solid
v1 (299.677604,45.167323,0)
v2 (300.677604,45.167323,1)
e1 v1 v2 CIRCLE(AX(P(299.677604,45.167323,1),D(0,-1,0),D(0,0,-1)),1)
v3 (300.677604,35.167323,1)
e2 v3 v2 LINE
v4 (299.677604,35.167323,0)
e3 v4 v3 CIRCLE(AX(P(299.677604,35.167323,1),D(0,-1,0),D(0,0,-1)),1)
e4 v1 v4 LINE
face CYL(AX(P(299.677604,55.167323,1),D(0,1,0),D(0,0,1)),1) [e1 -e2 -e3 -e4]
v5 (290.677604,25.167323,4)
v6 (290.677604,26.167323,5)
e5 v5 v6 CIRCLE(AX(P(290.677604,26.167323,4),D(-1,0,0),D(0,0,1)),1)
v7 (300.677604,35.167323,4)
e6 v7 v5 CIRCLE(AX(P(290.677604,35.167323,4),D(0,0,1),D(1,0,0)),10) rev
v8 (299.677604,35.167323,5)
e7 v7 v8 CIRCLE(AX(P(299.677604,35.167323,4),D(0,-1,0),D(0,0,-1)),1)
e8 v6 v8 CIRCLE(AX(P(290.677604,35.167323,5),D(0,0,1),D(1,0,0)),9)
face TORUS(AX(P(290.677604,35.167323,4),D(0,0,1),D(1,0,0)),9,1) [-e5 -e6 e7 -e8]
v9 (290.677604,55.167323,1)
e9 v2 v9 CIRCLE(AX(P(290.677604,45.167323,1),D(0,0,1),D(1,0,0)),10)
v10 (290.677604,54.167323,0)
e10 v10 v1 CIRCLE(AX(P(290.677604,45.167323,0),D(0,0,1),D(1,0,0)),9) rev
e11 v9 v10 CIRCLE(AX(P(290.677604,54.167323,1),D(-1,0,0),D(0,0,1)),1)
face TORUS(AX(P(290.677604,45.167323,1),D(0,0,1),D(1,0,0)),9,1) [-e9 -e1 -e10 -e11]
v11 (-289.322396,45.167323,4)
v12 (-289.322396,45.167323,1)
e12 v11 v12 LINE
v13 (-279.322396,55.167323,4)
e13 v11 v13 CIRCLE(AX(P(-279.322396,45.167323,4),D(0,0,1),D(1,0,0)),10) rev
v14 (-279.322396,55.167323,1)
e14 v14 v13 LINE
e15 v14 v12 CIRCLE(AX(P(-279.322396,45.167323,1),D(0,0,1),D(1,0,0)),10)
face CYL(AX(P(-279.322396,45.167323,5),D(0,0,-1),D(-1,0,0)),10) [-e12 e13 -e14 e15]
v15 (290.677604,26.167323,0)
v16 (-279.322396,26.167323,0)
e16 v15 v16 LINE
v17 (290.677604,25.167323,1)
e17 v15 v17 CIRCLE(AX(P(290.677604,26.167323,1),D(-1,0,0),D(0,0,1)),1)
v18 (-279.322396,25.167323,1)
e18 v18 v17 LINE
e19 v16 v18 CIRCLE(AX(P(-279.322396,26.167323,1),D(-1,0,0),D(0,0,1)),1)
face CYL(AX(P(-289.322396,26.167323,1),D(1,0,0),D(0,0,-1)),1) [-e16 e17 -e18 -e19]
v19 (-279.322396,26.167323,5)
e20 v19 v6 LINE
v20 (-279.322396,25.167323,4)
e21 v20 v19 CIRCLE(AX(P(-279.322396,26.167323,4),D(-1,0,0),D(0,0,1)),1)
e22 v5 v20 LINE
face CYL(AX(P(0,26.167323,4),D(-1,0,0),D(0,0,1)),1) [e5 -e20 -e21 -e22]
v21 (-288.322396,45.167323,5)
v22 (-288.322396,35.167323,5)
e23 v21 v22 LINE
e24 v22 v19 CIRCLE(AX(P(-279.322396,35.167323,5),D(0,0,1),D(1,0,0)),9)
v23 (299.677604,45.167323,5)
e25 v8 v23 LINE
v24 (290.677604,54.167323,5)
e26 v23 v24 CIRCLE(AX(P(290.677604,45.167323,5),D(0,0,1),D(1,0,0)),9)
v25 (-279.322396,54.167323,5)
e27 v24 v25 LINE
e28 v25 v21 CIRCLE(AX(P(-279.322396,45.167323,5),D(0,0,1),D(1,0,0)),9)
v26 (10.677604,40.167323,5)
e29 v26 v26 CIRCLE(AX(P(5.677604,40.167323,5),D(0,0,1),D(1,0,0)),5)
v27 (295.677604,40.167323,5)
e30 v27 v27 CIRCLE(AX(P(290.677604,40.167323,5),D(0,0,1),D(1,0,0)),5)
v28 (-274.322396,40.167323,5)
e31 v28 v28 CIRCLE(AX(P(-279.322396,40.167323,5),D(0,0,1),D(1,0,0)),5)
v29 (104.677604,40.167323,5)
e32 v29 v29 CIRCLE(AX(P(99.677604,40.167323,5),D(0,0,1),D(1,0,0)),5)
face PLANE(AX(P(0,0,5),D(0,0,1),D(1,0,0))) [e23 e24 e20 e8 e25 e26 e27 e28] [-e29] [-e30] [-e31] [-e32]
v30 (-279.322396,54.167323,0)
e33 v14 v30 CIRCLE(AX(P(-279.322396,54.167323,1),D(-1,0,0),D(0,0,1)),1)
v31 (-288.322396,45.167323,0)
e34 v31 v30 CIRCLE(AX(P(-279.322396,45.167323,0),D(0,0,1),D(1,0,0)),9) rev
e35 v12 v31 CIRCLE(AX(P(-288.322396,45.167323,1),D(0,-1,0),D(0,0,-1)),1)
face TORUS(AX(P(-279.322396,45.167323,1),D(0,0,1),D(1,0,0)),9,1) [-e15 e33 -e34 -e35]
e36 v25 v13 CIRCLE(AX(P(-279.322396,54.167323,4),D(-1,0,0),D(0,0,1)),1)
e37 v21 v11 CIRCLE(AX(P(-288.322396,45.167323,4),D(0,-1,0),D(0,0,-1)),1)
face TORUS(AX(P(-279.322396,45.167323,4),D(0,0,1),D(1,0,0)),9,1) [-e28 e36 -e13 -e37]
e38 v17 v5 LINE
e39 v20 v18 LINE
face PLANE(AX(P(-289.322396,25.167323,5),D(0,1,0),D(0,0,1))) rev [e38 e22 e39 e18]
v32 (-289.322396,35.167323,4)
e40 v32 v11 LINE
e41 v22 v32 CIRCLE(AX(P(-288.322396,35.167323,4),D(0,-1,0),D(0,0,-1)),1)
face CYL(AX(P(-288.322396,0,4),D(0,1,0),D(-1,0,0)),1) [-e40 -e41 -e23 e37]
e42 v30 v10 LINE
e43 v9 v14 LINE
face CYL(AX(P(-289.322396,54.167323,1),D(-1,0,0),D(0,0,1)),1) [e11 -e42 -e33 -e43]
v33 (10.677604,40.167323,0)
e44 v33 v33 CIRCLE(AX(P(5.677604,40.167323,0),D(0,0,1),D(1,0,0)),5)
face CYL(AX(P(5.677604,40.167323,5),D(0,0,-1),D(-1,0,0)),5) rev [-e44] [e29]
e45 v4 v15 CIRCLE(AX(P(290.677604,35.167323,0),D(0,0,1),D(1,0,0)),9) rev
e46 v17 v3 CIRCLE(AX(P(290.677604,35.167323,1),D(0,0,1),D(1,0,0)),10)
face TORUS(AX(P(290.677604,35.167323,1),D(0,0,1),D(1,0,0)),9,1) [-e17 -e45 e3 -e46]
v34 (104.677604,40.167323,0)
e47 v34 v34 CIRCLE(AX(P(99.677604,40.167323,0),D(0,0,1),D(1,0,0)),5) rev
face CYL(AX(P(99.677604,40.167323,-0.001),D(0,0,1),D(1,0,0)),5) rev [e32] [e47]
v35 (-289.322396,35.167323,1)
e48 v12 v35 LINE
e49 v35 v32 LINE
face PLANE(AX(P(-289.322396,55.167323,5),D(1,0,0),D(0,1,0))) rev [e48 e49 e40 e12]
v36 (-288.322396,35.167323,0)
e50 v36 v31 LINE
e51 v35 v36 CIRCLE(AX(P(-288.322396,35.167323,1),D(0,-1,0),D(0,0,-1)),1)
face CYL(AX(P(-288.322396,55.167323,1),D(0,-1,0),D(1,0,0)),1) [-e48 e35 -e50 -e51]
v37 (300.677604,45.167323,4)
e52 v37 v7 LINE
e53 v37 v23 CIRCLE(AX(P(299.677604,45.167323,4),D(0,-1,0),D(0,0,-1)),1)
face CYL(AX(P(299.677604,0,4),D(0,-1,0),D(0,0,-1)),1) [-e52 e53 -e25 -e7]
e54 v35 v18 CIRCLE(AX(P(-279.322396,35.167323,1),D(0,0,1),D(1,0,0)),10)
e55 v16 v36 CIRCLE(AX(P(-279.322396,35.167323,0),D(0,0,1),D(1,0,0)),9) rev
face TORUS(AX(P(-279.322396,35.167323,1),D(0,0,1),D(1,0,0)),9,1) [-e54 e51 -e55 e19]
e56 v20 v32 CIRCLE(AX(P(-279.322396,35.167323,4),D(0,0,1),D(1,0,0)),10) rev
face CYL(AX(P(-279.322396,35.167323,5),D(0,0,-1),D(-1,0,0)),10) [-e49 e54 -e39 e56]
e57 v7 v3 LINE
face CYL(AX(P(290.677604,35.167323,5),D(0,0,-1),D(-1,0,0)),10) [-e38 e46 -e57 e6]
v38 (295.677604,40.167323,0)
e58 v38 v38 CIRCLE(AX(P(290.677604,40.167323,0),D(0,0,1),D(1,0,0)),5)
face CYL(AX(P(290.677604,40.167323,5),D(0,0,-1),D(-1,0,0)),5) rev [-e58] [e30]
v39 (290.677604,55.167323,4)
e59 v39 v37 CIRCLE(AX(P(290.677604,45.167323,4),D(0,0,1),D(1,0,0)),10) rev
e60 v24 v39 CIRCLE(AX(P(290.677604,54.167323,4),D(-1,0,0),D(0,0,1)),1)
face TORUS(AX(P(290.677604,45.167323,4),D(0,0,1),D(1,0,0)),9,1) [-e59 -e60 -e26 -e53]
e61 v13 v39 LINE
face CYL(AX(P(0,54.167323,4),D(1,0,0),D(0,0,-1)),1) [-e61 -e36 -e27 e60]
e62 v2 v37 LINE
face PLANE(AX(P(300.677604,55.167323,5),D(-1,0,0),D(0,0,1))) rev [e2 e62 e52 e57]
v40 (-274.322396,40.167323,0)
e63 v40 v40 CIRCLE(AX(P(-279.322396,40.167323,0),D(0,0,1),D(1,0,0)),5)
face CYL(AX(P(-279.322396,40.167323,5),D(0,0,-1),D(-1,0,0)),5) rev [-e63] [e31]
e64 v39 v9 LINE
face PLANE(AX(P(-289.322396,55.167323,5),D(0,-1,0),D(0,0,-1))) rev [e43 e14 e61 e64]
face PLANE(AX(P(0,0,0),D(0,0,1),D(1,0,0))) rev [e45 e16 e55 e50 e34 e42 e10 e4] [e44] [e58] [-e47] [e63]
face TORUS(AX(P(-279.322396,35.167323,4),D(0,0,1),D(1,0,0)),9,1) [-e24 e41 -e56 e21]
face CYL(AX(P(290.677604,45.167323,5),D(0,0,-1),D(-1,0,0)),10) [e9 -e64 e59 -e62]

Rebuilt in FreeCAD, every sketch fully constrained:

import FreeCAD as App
import Part
import Sketcher


def edges_at(feature, points):
    """Names of the edges that pass closest to the given points."""
    edges = feature.Shape.Edges
    near = lambda p: min(range(len(edges)), key=lambda i: edges[i].distToShape(Part.Vertex(*p))[0])
    return sorted({f"Edge{near(p) + 1}" for p in points})


def add_polygon(sketch, points):
    """Adds a closed chain of lines whose ends are joined by coincident constraints."""
    first, n = sketch.GeometryCount, len(points)
    for a, b in zip(points, points[1:] + points[:1]):
        sketch.addGeometry(Part.LineSegment(App.Vector(*a, 0), App.Vector(*b, 0)), False)
    for i in range(n):
        sketch.addConstraint(Sketcher.Constraint("Coincident", first + i, 2, first + (i + 1) % n, 1))

doc = App.newDocument("Part")
body = doc.addObject("PartDesign::Body", "Body")

# Sketch on XY plane
sketch1 = body.newObject("Sketcher::SketchObject", "Sketch")
sketch1.AttachmentSupport = (doc.getObject("XY_Plane"), [""])
sketch1.MapMode = "FlatFace"
add_polygon(sketch1, [(-289.322396, 55.167323), (-289.322396, 25.167323), (300.677604, 25.167323), (300.677604, 55.167323)])  # lines 0-3
sketch1.addGeometry(Part.Circle(App.Vector(-279.322396, 40.167323, 0), App.Vector(0, 0, 1), 5), False)  # 4
sketch1.addGeometry(Part.Circle(App.Vector(5.677604, 40.167323, 0), App.Vector(0, 0, 1), 5), False)  # 5
sketch1.addGeometry(Part.Circle(App.Vector(290.677604, 40.167323, 0), App.Vector(0, 0, 1), 5), False)  # 6
sketch1.addConstraint(Sketcher.Constraint("Vertical", 0))
sketch1.addConstraint(Sketcher.Constraint("Horizontal", 1))
sketch1.addConstraint(Sketcher.Constraint("Vertical", 2))
sketch1.addConstraint(Sketcher.Constraint("Horizontal", 3))
sketch1.addConstraint(Sketcher.Constraint("Equal", 4, 5))
sketch1.addConstraint(Sketcher.Constraint("Equal", 5, 6))
sketch1.addConstraint(Sketcher.Constraint("Horizontal", 4, 3, 5, 3))
sketch1.addConstraint(Sketcher.Constraint("Horizontal", 5, 3, 6, 3))
sketch1.addConstraint(Sketcher.Constraint("Diameter", 4, 10.0))
sketch1.addConstraint(Sketcher.Constraint("DistanceX", 1, 1, 1, 2, 590.0))
sketch1.addConstraint(Sketcher.Constraint("DistanceY", 0, 2, 0, 1, 30.0))
sketch1.addConstraint(Sketcher.Constraint("DistanceX", 4, 3, 5, 3, 285.0))
sketch1.addConstraint(Sketcher.Constraint("DistanceX", 5, 3, 6, 3, 285.0))
sketch1.addConstraint(Sketcher.Constraint("DistanceX", 0, 2, 4, 3, 10.0))
sketch1.addConstraint(Sketcher.Constraint("DistanceY", 0, 2, 4, 3, 15.0))
sketch1.addConstraint(Sketcher.Constraint("DistanceX", 4, 3, -1, 1, 279.322396))
sketch1.addConstraint(Sketcher.Constraint("DistanceY", -1, 1, 4, 3, 40.167323))
pad1 = body.newObject("PartDesign::Pad", "Pad")
pad1.Profile = sketch1
pad1.Length = 5
doc.recompute()

fillet = body.newObject("PartDesign::Fillet", "Fillet")
fillet.Base = (pad1, edges_at(pad1, [
    (-289.322, 55.167, 2.5),
    (300.678, 55.167, 2.5),
    (300.678, 25.167, 2.5),
    (-289.322, 25.167, 2.5),
]))
fillet.Radius = 10
doc.recompute()

fillet2 = body.newObject("PartDesign::Fillet", "Fillet001")
fillet2.Base = (fillet, edges_at(fillet, [
    (300.678, 40.167, 0),
    (300.678, 40.167, 5),
    (-289.322, 40.167, 0),
    (5.678, 55.167, 0),
    (5.678, 25.167, 0),
    (-286.393, 52.238, 0),
    (-286.393, 28.096, 0),
    (297.749, 52.238, 0),
    (297.749, 28.096, 0),
    (5.678, 25.167, 5),
    (-289.322, 40.167, 5),
    (5.678, 55.167, 5),
    (-286.393, 52.238, 5),
    (-286.393, 28.096, 5),
    (297.749, 52.238, 5),
    (297.749, 28.096, 5),
]))
fillet2.Radius = 1

# Sketch on XY plane
sketch2 = body.newObject("Sketcher::SketchObject", "Sketch001")
sketch2.AttachmentSupport = (doc.getObject("XY_Plane"), [""])
sketch2.MapMode = "FlatFace"
sketch2.AttachmentOffset = App.Placement(App.Vector(0, 0, 5), App.Rotation())
sketch2.addGeometry(Part.Circle(App.Vector(99.677604, 40.167323, 0), App.Vector(0, 0, 1), 5), False)
sketch2.addConstraint(Sketcher.Constraint("Diameter", 0, 10.0))
sketch2.addConstraint(Sketcher.Constraint("DistanceX", -1, 1, 0, 3, 99.677604))
sketch2.addConstraint(Sketcher.Constraint("DistanceY", -1, 1, 0, 3, 40.167323))
pocket1 = body.newObject("PartDesign::Pocket", "Pocket")
pocket1.Profile = sketch2
pocket1.Type = "UpToFirst"

doc.recompute()
